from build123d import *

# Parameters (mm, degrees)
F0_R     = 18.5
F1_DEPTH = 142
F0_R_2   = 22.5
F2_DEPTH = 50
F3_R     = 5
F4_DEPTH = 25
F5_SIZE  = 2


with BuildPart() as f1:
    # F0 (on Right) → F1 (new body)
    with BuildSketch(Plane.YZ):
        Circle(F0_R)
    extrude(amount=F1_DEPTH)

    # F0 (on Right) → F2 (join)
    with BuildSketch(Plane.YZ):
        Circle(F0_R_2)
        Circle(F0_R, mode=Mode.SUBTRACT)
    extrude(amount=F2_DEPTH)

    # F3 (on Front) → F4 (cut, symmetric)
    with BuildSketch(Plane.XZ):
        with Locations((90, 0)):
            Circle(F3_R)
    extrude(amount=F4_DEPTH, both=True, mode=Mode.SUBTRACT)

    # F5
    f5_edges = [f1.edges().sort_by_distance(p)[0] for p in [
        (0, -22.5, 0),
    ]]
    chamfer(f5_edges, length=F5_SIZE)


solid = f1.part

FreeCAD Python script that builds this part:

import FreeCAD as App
import Part
import Sketcher
Q = App.Units.Quantity


def edges_at(feature, points):
    """Names of the edges that pass closest to the given points."""
    edges = feature.Shape.Edges
    near = lambda p: min(range(len(edges)), key=lambda i: edges[i].distToShape(Part.Vertex(*p))[0])
    return sorted({f"Edge{near(p) + 1}" for p in points})

doc = App.newDocument("Part")
body = doc.addObject("PartDesign::Body", "Body")

# Sketch on YZ plane
sketch1 = body.newObject("Sketcher::SketchObject", "Sketch")
sketch1.AttachmentSupport = (doc.getObject("YZ_Plane"), [""])
sketch1.MapMode = "FlatFace"
sketch1.addGeometry(Part.Circle(App.Vector(0, 0, 0), App.Vector(0, 0, 1), 18.5), False)
sketch1.addConstraint(Sketcher.Constraint("Coincident", 0, 3, -1, 1))
sketch1.addConstraint(Sketcher.Constraint("Diameter", 0, Q("37 mm")))
pad1 = body.newObject("PartDesign::Pad", "Pad")
pad1.Profile = sketch1
pad1.Length = 142

# Sketch on YZ plane
sketch2 = body.newObject("Sketcher::SketchObject", "Sketch001")
sketch2.AttachmentSupport = (doc.getObject("YZ_Plane"), [""])
sketch2.MapMode = "FlatFace"
sketch2.addGeometry(Part.Circle(App.Vector(0, 0, 0), App.Vector(0, 0, 1), 22.5), False)
sketch2.addGeometry(Part.Circle(App.Vector(0, 0, 0), App.Vector(0, 0, 1), 18.5), False)
sketch2.addConstraint(Sketcher.Constraint("Coincident", 0, 3, -1, 1))
sketch2.addConstraint(Sketcher.Constraint("Coincident", 1, 3, -1, 1))
sketch2.addConstraint(Sketcher.Constraint("Diameter", 0, Q("45 mm")))
sketch2.addConstraint(Sketcher.Constraint("Diameter", 1, Q("37 mm")))
pad2 = body.newObject("PartDesign::Pad", "Pad001")
pad2.Profile = sketch2
pad2.Length = 50

# Sketch on XZ plane
sketch3 = body.newObject("Sketcher::SketchObject", "Sketch002")
sketch3.AttachmentSupport = (doc.getObject("XZ_Plane"), [""])
sketch3.MapMode = "FlatFace"
sketch3.addGeometry(Part.Circle(App.Vector(90, 0, 0), App.Vector(0, 0, 1), 5), False)
sketch3.addConstraint(Sketcher.Constraint("PointOnObject", 0, 3, -1))
sketch3.addConstraint(Sketcher.Constraint("Diameter", 0, Q("10 mm")))
sketch3.addConstraint(Sketcher.Constraint("DistanceX", -1, 1, 0, 3, Q("90 mm")))
pocket1 = body.newObject("PartDesign::Pocket", "Pocket")
pocket1.Profile = sketch3
pocket1.Length = 50
pocket1.Midplane = True
doc.recompute()

chamfer = body.newObject("PartDesign::Chamfer", "Chamfer")
chamfer.Base = (pocket1, edges_at(pocket1, [(0, -22.5, 0)]))
chamfer.Size = 2

doc.recompute()
